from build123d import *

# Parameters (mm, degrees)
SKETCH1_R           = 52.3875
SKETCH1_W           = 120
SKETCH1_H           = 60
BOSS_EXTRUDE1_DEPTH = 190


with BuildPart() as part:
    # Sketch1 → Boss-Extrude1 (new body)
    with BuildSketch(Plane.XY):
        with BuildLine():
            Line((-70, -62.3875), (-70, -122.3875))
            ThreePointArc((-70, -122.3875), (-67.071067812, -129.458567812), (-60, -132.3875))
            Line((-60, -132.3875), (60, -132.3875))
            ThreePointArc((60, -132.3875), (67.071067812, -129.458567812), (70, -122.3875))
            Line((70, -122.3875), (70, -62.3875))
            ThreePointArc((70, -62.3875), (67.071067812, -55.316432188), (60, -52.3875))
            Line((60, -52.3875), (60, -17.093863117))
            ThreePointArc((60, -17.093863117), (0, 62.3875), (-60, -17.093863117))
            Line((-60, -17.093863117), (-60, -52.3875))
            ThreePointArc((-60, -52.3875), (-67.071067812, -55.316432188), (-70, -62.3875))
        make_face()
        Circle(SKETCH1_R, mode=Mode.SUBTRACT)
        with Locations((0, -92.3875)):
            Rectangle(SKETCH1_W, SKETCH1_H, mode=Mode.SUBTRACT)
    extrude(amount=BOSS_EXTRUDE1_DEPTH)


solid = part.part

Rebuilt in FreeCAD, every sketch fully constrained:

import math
import FreeCAD as App
import Part
import Sketcher


def add_polygon(sketch, points):
    """Adds a closed chain of lines whose ends are joined by coincident constraints."""
    first, n = sketch.GeometryCount, len(points)
    for a, b in zip(points, points[1:] + points[:1]):
        sketch.addGeometry(Part.LineSegment(App.Vector(*a, 0), App.Vector(*b, 0)), False)
    for i in range(n):
        sketch.addConstraint(Sketcher.Constraint("Coincident", first + i, 2, first + (i + 1) % n, 1))

doc = App.newDocument("Part")
body = doc.addObject("PartDesign::Body", "Body")

# Sketch on XY plane
sketch1 = body.newObject("Sketcher::SketchObject", "Sketch")
sketch1.AttachmentSupport = (doc.getObject("XY_Plane"), [""])
sketch1.MapMode = "FlatFace"
sketch1.addGeometry(Part.LineSegment(App.Vector(-70, -62, 0), App.Vector(-70, -122, 0)), False)  # 0
sketch1.addGeometry(Part.ArcOfCircle(Part.Circle(App.Vector(-60, -122, 0), App.Vector(0, 0, 1), 10), math.radians(180), math.radians(270)), False)  # 1
sketch1.addGeometry(Part.LineSegment(App.Vector(-60, -132, 0), App.Vector(60, -132, 0)), False)  # 2
sketch1.addGeometry(Part.ArcOfCircle(Part.Circle(App.Vector(60, -122, 0), App.Vector(0, 0, 1), 10), math.radians(-90), math.radians(0)), False)  # 3
sketch1.addGeometry(Part.LineSegment(App.Vector(70, -122, 0), App.Vector(70, -62, 0)), False)  # 4
sketch1.addGeometry(Part.ArcOfCircle(Part.Circle(App.Vector(60, -62, 0), App.Vector(0, 0, 1), 10), math.radians(0), math.radians(90)), False)  # 5
sketch1.addGeometry(Part.LineSegment(App.Vector(60, -52, 0), App.Vector(60, -17, 0)), False)  # 6
sketch1.addGeometry(Part.ArcOfCircle(Part.Circle(App.Vector(0, 0, 0), App.Vector(0, 0, 1), 62), math.radians(-16), math.radians(196)), False)  # 7
sketch1.addGeometry(Part.LineSegment(App.Vector(-60, -17, 0), App.Vector(-60, -52, 0)), False)  # 8
sketch1.addGeometry(Part.ArcOfCircle(Part.Circle(App.Vector(-60, -62, 0), App.Vector(0, 0, 1), 10), math.radians(90), math.radians(180)), False)  # 9
add_polygon(sketch1, [(60, -122), (-60, -122), (-60, -62), (60, -62)])  # lines 10-13
sketch1.addGeometry(Part.Circle(App.Vector(0, 0, 0), App.Vector(0, 0, 1), 52), False)  # 14
sketch1.addConstraint(Sketcher.Constraint("Tangent", 0, 2, 1, 1))
sketch1.addConstraint(Sketcher.Constraint("Tangent", 1, 2, 2, 1))
sketch1.addConstraint(Sketcher.Constraint("Tangent", 2, 2, 3, 1))
sketch1.addConstraint(Sketcher.Constraint("Tangent", 3, 2, 4, 1))
sketch1.addConstraint(Sketcher.Constraint("Tangent", 4, 2, 5, 1))
sketch1.addConstraint(Sketcher.Constraint("Coincident", 5, 2, 6, 1))
sketch1.addConstraint(Sketcher.Constraint("Coincident", 6, 2, 7, 1))
sketch1.addConstraint(Sketcher.Constraint("Coincident", 7, 2, 8, 1))
sketch1.addConstraint(Sketcher.Constraint("Coincident", 8, 2, 9, 1))
sketch1.addConstraint(Sketcher.Constraint("Tangent", 9, 2, 0, 1))
sketch1.addConstraint(Sketcher.Constraint("Vertical", 0))
sketch1.addConstraint(Sketcher.Constraint("Horizontal", 2))
sketch1.addConstraint(Sketcher.Constraint("Vertical", 4))
sketch1.addConstraint(Sketcher.Constraint("Vertical", 6))
sketch1.addConstraint(Sketcher.Constraint("Vertical", 8))
sketch1.addConstraint(Sketcher.Constraint("Horizontal", 10))
sketch1.addConstraint(Sketcher.Constraint("Vertical", 11))
sketch1.addConstraint(Sketcher.Constraint("Horizontal", 12))
sketch1.addConstraint(Sketcher.Constraint("Vertical", 13))
sketch1.addConstraint(Sketcher.Constraint("Coincident", 7, 3, -1, 1))
sketch1.addConstraint(Sketcher.Constraint("Coincident", 14, 3, -1, 1))
sketch1.addConstraint(Sketcher.Constraint("Coincident", 10, 2, 1, 3))
sketch1.addConstraint(Sketcher.Constraint("Coincident", 11, 2, 9, 3))
sketch1.addConstraint(Sketcher.Constraint("Coincident", 12, 2, 5, 3))
sketch1.addConstraint(Sketcher.Constraint("Coincident", 13, 2, 3, 3))
sketch1.addConstraint(Sketcher.Constraint("Horizontal", 6, 2, 7, 2))
sketch1.addConstraint(Sketcher.Constraint("Vertical", 2, 2, 5, 2))
sketch1.addConstraint(Sketcher.Constraint("Vertical", 1, 2, 7, 2))
sketch1.addConstraint(Sketcher.Constraint("Radius", 1, 10.0))
sketch1.addConstraint(Sketcher.Constraint("DistanceX", 2, 1, 2, 2, 120.0))
sketch1.addConstraint(Sketcher.Constraint("DistanceY", 0, 2, 0, 1, 60.0))
sketch1.addConstraint(Sketcher.Constraint("Diameter", 14, 104.775))
sketch1.addConstraint(Sketcher.Constraint("Radius", 7, 62.3875))
sketch1.addConstraint(Sketcher.Constraint("DistanceY", 1, 3, -1, 1, 122.3875))
pad1 = body.newObject("PartDesign::Pad", "Pad")
pad1.Profile = sketch1
pad1.Length = 190

doc.recompute()
